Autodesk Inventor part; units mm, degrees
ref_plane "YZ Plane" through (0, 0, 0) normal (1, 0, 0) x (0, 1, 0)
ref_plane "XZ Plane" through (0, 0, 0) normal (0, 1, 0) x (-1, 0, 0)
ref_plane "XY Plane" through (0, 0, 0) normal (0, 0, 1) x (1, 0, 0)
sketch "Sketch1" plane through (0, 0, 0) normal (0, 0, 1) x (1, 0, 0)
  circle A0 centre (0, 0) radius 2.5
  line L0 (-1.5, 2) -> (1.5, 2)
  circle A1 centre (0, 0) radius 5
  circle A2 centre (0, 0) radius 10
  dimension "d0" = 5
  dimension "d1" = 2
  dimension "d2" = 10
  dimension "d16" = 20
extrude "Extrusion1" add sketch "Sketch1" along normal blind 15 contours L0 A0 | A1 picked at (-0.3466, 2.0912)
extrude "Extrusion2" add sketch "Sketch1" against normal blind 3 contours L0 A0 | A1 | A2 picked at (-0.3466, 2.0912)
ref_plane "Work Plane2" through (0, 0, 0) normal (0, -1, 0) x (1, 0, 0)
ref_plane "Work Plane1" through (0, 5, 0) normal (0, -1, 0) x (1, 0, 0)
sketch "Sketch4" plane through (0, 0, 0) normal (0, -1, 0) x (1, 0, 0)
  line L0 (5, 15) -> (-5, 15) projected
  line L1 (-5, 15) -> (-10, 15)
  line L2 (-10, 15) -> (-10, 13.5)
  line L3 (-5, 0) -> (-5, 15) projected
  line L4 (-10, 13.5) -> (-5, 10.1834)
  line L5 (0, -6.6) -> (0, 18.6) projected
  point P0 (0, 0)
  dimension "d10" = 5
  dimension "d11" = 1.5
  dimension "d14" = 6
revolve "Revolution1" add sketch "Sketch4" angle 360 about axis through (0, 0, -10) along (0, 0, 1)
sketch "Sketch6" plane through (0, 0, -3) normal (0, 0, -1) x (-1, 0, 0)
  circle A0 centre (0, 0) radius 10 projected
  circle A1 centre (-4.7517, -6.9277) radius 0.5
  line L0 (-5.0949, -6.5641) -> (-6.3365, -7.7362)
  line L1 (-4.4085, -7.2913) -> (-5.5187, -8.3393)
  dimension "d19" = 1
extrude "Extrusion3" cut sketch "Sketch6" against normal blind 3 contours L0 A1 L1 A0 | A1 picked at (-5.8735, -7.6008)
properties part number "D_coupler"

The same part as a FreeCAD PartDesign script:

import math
import FreeCAD as App
import Part
import Sketcher
Q = App.Units.Quantity


def add_polygon(sketch, points):
    """Adds a closed chain of lines whose ends are joined by coincident constraints."""
    first, n = sketch.GeometryCount, len(points)
    for a, b in zip(points, points[1:] + points[:1]):
        sketch.addGeometry(Part.LineSegment(App.Vector(*a, 0), App.Vector(*b, 0)), False)
    for i in range(n):
        sketch.addConstraint(Sketcher.Constraint("Coincident", first + i, 2, first + (i + 1) % n, 1))

doc = App.newDocument("Part")
params = doc.addObject("Spreadsheet::Sheet", "Params")
for row, (alias, value) in enumerate([
    ("sketch1_diameter", "10 mm"),
    ("sketch1_radius", "2.5 mm"),
    ("pad1_length", "15 mm"),
    ("sketch2_diameter", "20 mm"),
    ("sketch2_radius", "2.5 mm"),
    ("pad2_length", "3 mm"),
    ("sketch3_width", "5 mm"),
    ("sketch3_length", "6 mm"),
    ("sketch3_height", "1.5 mm"),
    ("revolution_angle", "360 deg"),
    ("sketch4_radius", "0.5 mm"),
    ("sketch4_radius2", "10 mm"),
    ("pocket1_length", "3 mm"),
], start=1):
    params.set(f"A{row}", alias)
    params.set(f"B{row}", "=" + value)
    params.setAlias(f"B{row}", alias)

body = doc.addObject("PartDesign::Body", "Body")

sketch1 = body.newObject("Sketcher::SketchObject", "Sketch")
sketch1.AttachmentSupport = (doc.getObject("XY_Plane"), [""])
sketch1.MapMode = "FlatFace"
sketch1.addGeometry([
    Part.Circle(App.Vector(0, 0, 0), App.Vector(0, 0, 1), 5),
    Part.LineSegment(App.Vector(-1.5, 2, 0), App.Vector(1.5, 2, 0)),
    Part.ArcOfCircle(Part.Circle(App.Vector(0, 0, 0), App.Vector(0, 0, 1), 2.5), math.radians(126.869898), math.radians(413.130102)),
], False)
sketch1.addConstraint([
    Sketcher.Constraint("Coincident", 1, 1, 2, 1),
    Sketcher.Constraint("Coincident", 2, 2, 1, 2),
    Sketcher.Constraint("Horizontal", 1),
    Sketcher.Constraint("Coincident", 0, 3, -1, 1),
    Sketcher.Constraint("Coincident", 2, 3, -1, 1),
    Sketcher.Constraint("Diameter", 0, Q("10 mm")),
    Sketcher.Constraint("Radius", 2, Q("2.5 mm")),
    Sketcher.Constraint("DistanceY", -1, 1, 1, 1, Q("2 mm")),
])
sketch1.setExpression("Constraints[5]", "Params.sketch1_diameter")
sketch1.setExpression("Constraints[6]", "Params.sketch1_radius")
pad1 = body.newObject("PartDesign::Pad", "Pad")
pad1.Profile = sketch1
pad1.setExpression("Length", "Params.pad1_length")

sketch2 = body.newObject("Sketcher::SketchObject", "Sketch001")
sketch2.AttachmentSupport = (doc.getObject("XY_Plane"), [""])
sketch2.MapMode = "FlatFace"
sketch2.addGeometry([
    Part.Circle(App.Vector(0, 0, 0), App.Vector(0, 0, 1), 10),
    Part.LineSegment(App.Vector(-1.5, 2, 0), App.Vector(1.5, 2, 0)),
    Part.ArcOfCircle(Part.Circle(App.Vector(0, 0, 0), App.Vector(0, 0, 1), 2.5), math.radians(126.869898), math.radians(413.130102)),
], False)
sketch2.addConstraint([
    Sketcher.Constraint("Coincident", 1, 1, 2, 1),
    Sketcher.Constraint("Coincident", 2, 2, 1, 2),
    Sketcher.Constraint("Horizontal", 1),
    Sketcher.Constraint("Coincident", 0, 3, -1, 1),
    Sketcher.Constraint("Coincident", 2, 3, -1, 1),
    Sketcher.Constraint("Diameter", 0, Q("20 mm")),
    Sketcher.Constraint("Radius", 2, Q("2.5 mm")),
    Sketcher.Constraint("DistanceY", -1, 1, 1, 1, Q("2 mm")),
])
sketch2.setExpression("Constraints[5]", "Params.sketch2_diameter")
sketch2.setExpression("Constraints[6]", "Params.sketch2_radius")
pad2 = body.newObject("PartDesign::Pad", "Pad001")
pad2.Profile = sketch2
pad2.setExpression("Length", "Params.pad2_length")
pad2.Reversed = True

sketch3 = body.newObject("Sketcher::SketchObject", "Sketch002")
sketch3.AttachmentSupport = (doc.getObject("XZ_Plane"), [""])
sketch3.MapMode = "FlatFace"
add_polygon(sketch3, [(-5, 10.1834), (-5, 15), (-10, 15), (-10, 13.5)])
sketch3.addConstraint([
    Sketcher.Constraint("Vertical", 0),
    Sketcher.Constraint("Horizontal", 1),
    Sketcher.Constraint("Vertical", 2),
    Sketcher.Constraint("DistanceX", 1, 2, 1, 1, Q("5 mm")),
    Sketcher.Constraint("Distance", 3, Q("6 mm")),
    Sketcher.Constraint("DistanceY", 2, 2, 2, 1, Q("1.5 mm")),
    Sketcher.Constraint("DistanceX", 0, 2, -1, 1, Q("5 mm")),
    Sketcher.Constraint("DistanceY", -1, 1, 0, 2, Q("15 mm")),
])
sketch3.setExpression("Constraints[7]", "Params.sketch3_width")
sketch3.setExpression("Constraints[8]", "Params.sketch3_length")
sketch3.setExpression("Constraints[9]", "Params.sketch3_height")
revolution = body.newObject("PartDesign::Revolution", "Revolution")
revolution.Profile = sketch3
revolution.ReferenceAxis = (sketch3, ["V_Axis"])
revolution.setExpression("Angle", "Params.revolution_angle")

sketch4 = body.newObject("Sketcher::SketchObject", "Sketch003")
sketch4.AttachmentSupport = (doc.getObject("XY_Plane"), [""])
sketch4.MapMode = "FlatFace"
sketch4.AttachmentOffset = App.Placement(App.Vector(0, 0, -3), App.Rotation())
sketch4.addGeometry([
    Part.LineSegment(App.Vector(5.0949, -6.5641, 0), App.Vector(6.3365, -7.7362, 0)),
    Part.ArcOfCircle(Part.Circle(App.Vector(0, 0, 0), App.Vector(0, 0, 1), 10), math.radians(-56.504598), math.radians(-50.680076)),
    Part.LineSegment(App.Vector(5.5187, -8.3393, 0), App.Vector(4.4085, -7.2913, 0)),
    Part.ArcOfCircle(Part.Circle(App.Vector(4.7517, -6.9277, 0), App.Vector(0, 0, 1), 0.5), math.radians(46.653239), math.radians(226.653239)),
], False)
sketch4.addConstraint([
    Sketcher.Constraint("Coincident", 0, 2, 1, 2),
    Sketcher.Constraint("Coincident", 1, 1, 2, 1),
    Sketcher.Constraint("Tangent", 2, 2, 3, 2),
    Sketcher.Constraint("Tangent", 3, 1, 0, 1),
    Sketcher.Constraint("Coincident", 1, 3, -1, 1),
    Sketcher.Constraint("Parallel", 0, 2),
    Sketcher.Constraint("Radius", 3, Q("0.5 mm")),
    Sketcher.Constraint("Radius", 1, Q("10 mm")),
    Sketcher.Constraint("Angle", 0, Q("-43.3507 deg")),
    Sketcher.Constraint("DistanceX", -1, 1, 3, 1, Q("5.095 mm")),
    Sketcher.Constraint("DistanceY", 3, 1, -1, 1, Q("6.564 mm")),
])
sketch4.setExpression("Constraints[6]", "Params.sketch4_radius")
sketch4.setExpression("Constraints[7]", "Params.sketch4_radius2")
pocket1 = body.newObject("PartDesign::Pocket", "Pocket")
pocket1.Profile = sketch4
pocket1.setExpression("Length", "Params.pocket1_length")
pocket1.Reversed = True

doc.recompute()
